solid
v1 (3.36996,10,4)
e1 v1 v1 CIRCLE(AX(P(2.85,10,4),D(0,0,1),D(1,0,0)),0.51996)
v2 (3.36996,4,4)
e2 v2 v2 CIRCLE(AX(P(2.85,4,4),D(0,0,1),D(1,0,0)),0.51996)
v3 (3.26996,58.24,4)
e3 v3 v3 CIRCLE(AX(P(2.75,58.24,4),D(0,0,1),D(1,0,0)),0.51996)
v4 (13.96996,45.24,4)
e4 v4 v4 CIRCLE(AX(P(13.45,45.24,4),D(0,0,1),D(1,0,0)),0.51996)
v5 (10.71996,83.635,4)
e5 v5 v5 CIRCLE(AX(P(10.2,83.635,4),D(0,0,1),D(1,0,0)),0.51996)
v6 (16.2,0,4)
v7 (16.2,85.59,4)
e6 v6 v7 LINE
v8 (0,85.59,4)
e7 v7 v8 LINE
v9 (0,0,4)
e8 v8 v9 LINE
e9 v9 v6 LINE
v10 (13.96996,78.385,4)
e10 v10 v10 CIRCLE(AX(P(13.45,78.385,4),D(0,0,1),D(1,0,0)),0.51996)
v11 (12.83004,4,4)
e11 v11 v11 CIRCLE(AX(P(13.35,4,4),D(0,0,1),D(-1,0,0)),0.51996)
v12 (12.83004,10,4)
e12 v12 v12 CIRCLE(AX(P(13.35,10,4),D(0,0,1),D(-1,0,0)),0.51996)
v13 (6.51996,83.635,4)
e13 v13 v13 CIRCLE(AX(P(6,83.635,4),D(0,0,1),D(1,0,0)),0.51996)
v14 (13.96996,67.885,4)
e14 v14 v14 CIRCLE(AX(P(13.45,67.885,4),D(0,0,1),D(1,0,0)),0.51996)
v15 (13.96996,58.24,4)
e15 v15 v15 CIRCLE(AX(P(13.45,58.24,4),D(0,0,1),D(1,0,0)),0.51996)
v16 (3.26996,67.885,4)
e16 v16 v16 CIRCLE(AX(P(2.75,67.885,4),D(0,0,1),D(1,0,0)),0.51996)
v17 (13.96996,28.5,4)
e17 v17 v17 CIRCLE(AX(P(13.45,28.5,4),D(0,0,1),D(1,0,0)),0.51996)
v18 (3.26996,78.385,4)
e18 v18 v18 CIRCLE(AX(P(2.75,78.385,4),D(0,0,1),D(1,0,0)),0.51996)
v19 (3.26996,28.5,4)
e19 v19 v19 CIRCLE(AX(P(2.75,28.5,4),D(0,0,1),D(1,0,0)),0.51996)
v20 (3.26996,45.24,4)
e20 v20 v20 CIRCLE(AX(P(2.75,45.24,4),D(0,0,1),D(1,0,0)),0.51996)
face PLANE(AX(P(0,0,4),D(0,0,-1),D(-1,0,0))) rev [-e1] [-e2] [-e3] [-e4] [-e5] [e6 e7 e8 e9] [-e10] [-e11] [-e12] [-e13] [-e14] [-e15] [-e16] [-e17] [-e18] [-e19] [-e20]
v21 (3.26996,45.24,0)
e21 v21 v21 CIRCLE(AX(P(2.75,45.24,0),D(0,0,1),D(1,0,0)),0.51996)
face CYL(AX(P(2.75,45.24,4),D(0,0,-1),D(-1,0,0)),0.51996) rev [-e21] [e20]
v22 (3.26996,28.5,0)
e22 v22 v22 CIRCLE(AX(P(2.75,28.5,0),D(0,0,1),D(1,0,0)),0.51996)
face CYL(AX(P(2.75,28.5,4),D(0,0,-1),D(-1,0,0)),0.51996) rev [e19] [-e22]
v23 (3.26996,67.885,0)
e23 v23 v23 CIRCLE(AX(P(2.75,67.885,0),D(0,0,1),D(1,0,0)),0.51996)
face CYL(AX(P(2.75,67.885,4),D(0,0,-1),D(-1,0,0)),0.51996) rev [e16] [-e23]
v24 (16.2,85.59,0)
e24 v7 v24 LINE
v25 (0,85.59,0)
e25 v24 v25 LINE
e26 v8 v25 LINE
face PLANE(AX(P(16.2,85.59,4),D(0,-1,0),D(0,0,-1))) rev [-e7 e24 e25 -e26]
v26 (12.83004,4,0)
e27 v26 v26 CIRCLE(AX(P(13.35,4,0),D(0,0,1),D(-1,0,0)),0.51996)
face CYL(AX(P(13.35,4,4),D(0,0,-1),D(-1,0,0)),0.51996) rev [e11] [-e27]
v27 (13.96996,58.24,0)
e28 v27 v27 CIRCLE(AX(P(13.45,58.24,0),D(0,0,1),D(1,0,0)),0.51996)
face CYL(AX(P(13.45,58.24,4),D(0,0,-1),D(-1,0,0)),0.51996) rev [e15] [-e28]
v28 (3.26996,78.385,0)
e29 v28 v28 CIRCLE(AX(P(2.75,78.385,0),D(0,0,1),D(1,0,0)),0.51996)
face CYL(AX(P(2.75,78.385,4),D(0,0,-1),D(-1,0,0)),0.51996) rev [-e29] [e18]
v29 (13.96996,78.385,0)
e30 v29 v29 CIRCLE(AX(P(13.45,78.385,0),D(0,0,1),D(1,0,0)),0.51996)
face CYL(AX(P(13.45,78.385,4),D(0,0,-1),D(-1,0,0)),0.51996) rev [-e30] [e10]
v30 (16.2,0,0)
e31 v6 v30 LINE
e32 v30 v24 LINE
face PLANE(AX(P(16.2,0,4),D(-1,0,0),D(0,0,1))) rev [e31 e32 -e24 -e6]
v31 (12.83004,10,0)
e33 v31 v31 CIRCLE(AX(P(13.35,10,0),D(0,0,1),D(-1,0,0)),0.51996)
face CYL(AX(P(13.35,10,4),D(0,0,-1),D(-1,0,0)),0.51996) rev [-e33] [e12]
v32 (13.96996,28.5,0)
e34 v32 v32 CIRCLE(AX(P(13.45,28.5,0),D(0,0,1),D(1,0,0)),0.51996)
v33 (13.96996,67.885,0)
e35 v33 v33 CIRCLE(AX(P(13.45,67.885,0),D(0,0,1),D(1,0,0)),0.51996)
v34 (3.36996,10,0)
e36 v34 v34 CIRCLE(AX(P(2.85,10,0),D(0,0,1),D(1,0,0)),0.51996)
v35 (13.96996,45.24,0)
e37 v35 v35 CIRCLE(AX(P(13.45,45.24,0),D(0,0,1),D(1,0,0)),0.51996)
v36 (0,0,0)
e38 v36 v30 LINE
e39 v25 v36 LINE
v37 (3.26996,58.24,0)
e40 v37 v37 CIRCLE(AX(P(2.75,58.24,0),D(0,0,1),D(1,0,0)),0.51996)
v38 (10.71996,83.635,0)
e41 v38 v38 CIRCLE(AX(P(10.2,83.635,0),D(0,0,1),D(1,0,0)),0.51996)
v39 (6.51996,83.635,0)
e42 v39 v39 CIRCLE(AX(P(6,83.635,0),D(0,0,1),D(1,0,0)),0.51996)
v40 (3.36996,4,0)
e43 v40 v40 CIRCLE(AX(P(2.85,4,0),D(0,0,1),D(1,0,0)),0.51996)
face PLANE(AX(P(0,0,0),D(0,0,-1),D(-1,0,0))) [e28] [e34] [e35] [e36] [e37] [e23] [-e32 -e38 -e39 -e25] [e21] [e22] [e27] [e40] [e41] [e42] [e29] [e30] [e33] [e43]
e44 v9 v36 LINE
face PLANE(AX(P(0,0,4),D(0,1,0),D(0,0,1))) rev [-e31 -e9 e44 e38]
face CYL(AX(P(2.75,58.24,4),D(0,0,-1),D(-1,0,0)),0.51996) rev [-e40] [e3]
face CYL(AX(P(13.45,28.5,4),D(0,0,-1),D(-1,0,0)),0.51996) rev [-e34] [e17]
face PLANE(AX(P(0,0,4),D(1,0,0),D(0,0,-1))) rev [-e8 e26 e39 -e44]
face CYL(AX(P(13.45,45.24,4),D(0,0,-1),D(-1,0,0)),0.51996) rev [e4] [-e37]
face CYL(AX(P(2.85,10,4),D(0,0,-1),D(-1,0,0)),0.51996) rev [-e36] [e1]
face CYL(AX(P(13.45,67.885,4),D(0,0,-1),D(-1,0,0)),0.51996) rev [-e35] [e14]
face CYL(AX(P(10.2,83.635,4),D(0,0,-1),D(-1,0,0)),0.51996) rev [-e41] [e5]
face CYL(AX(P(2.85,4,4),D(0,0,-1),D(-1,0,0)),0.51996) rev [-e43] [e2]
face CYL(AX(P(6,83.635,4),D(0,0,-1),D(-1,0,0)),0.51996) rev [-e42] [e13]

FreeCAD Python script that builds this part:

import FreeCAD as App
import Part
import Sketcher
from FreeCAD import Vector
Q = App.Units.Quantity

doc = App.newDocument("Part")
params = doc.addObject("Spreadsheet::Sheet", "Params")
for row, (alias, value) in enumerate([
    ("sketch1_width", "16.2 mm"),
    ("sketch1_height", "85.59 mm"),
    ("pad1_length", "4 mm"),
], start=1):
    params.set(f"A{row}", alias)
    params.set(f"B{row}", "=" + value)
    params.setAlias(f"B{row}", alias)

body = doc.addObject("PartDesign::Body", "Body")

sketch1 = body.newObject("Sketcher::SketchObject", "Sketch")
sketch1.AttachmentSupport = (doc.getObject("XY_Plane"), [""])
sketch1.MapMode = "FlatFace"
sketch1.addGeometry(Part.LineSegment(Vector(0, 85.6, 0), Vector(0, 0, 0)), False)
sketch1.addGeometry(Part.LineSegment(Vector(0, 0, 0), Vector(16.2, 0, 0)), False)
sketch1.addGeometry(Part.LineSegment(Vector(16.2, 0, 0), Vector(16.2, 85.6, 0)), False)
sketch1.addGeometry(Part.LineSegment(Vector(16.2, 85.6, 0), Vector(0, 85.6, 0)), False)
sketch1.addGeometry(Part.Circle(Vector(2.9, 4, 0), Vector(0, 0, 1), 0.5), False)
sketch1.addGeometry(Part.Circle(Vector(2.9, 10, 0), Vector(0, 0, 1), 0.5), False)
sketch1.addGeometry(Part.Circle(Vector(2.8, 28.5, 0), Vector(0, 0, 1), 0.5), False)
sketch1.addGeometry(Part.Circle(Vector(13.3, 4, 0), Vector(0, 0, 1), 0.5), False)
sketch1.addGeometry(Part.Circle(Vector(13.3, 10, 0), Vector(0, 0, 1), 0.5), False)
sketch1.addGeometry(Part.Circle(Vector(13.4, 28.5, 0), Vector(0, 0, 1), 0.5), False)
sketch1.addGeometry(Part.Circle(Vector(2.8, 45.2, 0), Vector(0, 0, 1), 0.5), False)
sketch1.addGeometry(Part.Circle(Vector(2.8, 58.2, 0), Vector(0, 0, 1), 0.5), False)
sketch1.addGeometry(Part.Circle(Vector(2.8, 67.9, 0), Vector(0, 0, 1), 0.5), False)
sketch1.addGeometry(Part.Circle(Vector(2.8, 78.4, 0), Vector(0, 0, 1), 0.5), False)
sketch1.addGeometry(Part.Circle(Vector(6, 83.6, 0), Vector(0, 0, 1), 0.5), False)
sketch1.addGeometry(Part.Circle(Vector(13.4, 45.2, 0), Vector(0, 0, 1), 0.5), False)
sketch1.addGeometry(Part.Circle(Vector(13.4, 58.2, 0), Vector(0, 0, 1), 0.5), False)
sketch1.addGeometry(Part.Circle(Vector(10.2, 83.6, 0), Vector(0, 0, 1), 0.5), False)
sketch1.addGeometry(Part.Circle(Vector(13.4, 67.9, 0), Vector(0, 0, 1), 0.5), False)
sketch1.addGeometry(Part.Circle(Vector(13.4, 78.4, 0), Vector(0, 0, 1), 0.5), False)
sketch1.addConstraint(Sketcher.Constraint("Coincident", 0, 2, 1, 1))
sketch1.addConstraint(Sketcher.Constraint("Coincident", 1, 2, 2, 1))
sketch1.addConstraint(Sketcher.Constraint("Coincident", 2, 2, 3, 1))
sketch1.addConstraint(Sketcher.Constraint("Coincident", 3, 2, 0, 1))
sketch1.addConstraint(Sketcher.Constraint("Vertical", 0))
sketch1.addConstraint(Sketcher.Constraint("Horizontal", 1))
sketch1.addConstraint(Sketcher.Constraint("Vertical", 2))
sketch1.addConstraint(Sketcher.Constraint("Horizontal", 3))
sketch1.addConstraint(Sketcher.Constraint("Coincident", 0, 2, -1, 1))
sketch1.addConstraint(Sketcher.Constraint("Equal", 4, 5))
sketch1.addConstraint(Sketcher.Constraint("Equal", 5, 6))
sketch1.addConstraint(Sketcher.Constraint("Equal", 6, 7))
sketch1.addConstraint(Sketcher.Constraint("Equal", 7, 8))
sketch1.addConstraint(Sketcher.Constraint("Equal", 8, 9))
sketch1.addConstraint(Sketcher.Constraint("Equal", 9, 10))
sketch1.addConstraint(Sketcher.Constraint("Equal", 10, 11))
sketch1.addConstraint(Sketcher.Constraint("Equal", 11, 12))
sketch1.addConstraint(Sketcher.Constraint("Equal", 12, 13))
sketch1.addConstraint(Sketcher.Constraint("Equal", 13, 14))
sketch1.addConstraint(Sketcher.Constraint("Equal", 14, 15))
sketch1.addConstraint(Sketcher.Constraint("Equal", 15, 16))
sketch1.addConstraint(Sketcher.Constraint("Equal", 16, 17))
sketch1.addConstraint(Sketcher.Constraint("Equal", 17, 18))
sketch1.addConstraint(Sketcher.Constraint("Equal", 18, 19))
sketch1.addConstraint(Sketcher.Constraint("Horizontal", 4, 3, 7, 3))
sketch1.addConstraint(Sketcher.Constraint("Horizontal", 5, 3, 8, 3))
sketch1.addConstraint(Sketcher.Constraint("Horizontal", 6, 3, 9, 3))
sketch1.addConstraint(Sketcher.Constraint("Horizontal", 10, 3, 15, 3))
sketch1.addConstraint(Sketcher.Constraint("Horizontal", 11, 3, 16, 3))
sketch1.addConstraint(Sketcher.Constraint("Horizontal", 14, 3, 17, 3))
sketch1.addConstraint(Sketcher.Constraint("Horizontal", 12, 3, 18, 3))
sketch1.addConstraint(Sketcher.Constraint("Horizontal", 13, 3, 19, 3))
sketch1.addConstraint(Sketcher.Constraint("Vertical", 4, 3, 5, 3))
sketch1.addConstraint(Sketcher.Constraint("Vertical", 7, 3, 8, 3))
sketch1.addConstraint(Sketcher.Constraint("Vertical", 6, 3, 10, 3))
sketch1.addConstraint(Sketcher.Constraint("Vertical", 10, 3, 11, 3))
sketch1.addConstraint(Sketcher.Constraint("Vertical", 11, 3, 12, 3))
sketch1.addConstraint(Sketcher.Constraint("Vertical", 12, 3, 13, 3))
sketch1.addConstraint(Sketcher.Constraint("Vertical", 9, 3, 15, 3))
sketch1.addConstraint(Sketcher.Constraint("Vertical", 15, 3, 16, 3))
sketch1.addConstraint(Sketcher.Constraint("Vertical", 16, 3, 18, 3))
sketch1.addConstraint(Sketcher.Constraint("Vertical", 18, 3, 19, 3))
sketch1.addConstraint(Sketcher.Constraint("DistanceX", 1, 1, 1, 2, Q("16.2 mm")))
sketch1.addConstraint(Sketcher.Constraint("DistanceY", -1, 1, 4, 3, Q("4 mm")))
sketch1.addConstraint(Sketcher.Constraint("DistanceY", -1, 1, 5, 3, Q("10 mm")))
sketch1.addConstraint(Sketcher.Constraint("DistanceX", -1, 1, 14, 3, Q("6 mm")))
sketch1.addConstraint(Sketcher.Constraint("DistanceY", 10, 3, 11, 3, Q("13 mm")))
sketch1.addConstraint(Sketcher.Constraint("DistanceX", 17, 3, 2, 2, Q("6 mm")))
sketch1.addConstraint(Sketcher.Constraint("DistanceY", 0, 2, 0, 1, Q("85.59 mm")))
sketch1.addConstraint(Sketcher.Constraint("DistanceY", -1, 1, 6, 3, Q("28.5 mm")))
sketch1.addConstraint(Sketcher.Constraint("DistanceX", 6, 3, 5, 3, Q("0.1 mm")))
sketch1.addConstraint(Sketcher.Constraint("DistanceX", 4, 3, 7, 3, Q("10.5 mm")))
sketch1.addConstraint(Sketcher.Constraint("DistanceX", 6, 3, 9, 3, Q("10.7 mm")))
sketch1.addConstraint(Sketcher.Constraint("DistanceY", 12, 3, 13, 3, Q("10.5 mm")))
sketch1.addConstraint(Sketcher.Constraint("Diameter", 4, Q("1.03992 mm")))
sketch1.addConstraint(Sketcher.Constraint("DistanceX", -1, 1, 4, 3, Q("2.85 mm")))
sketch1.addConstraint(Sketcher.Constraint("DistanceY", -1, 1, 10, 3, Q("45.24 mm")))
sketch1.addConstraint(Sketcher.Constraint("DistanceY", 13, 3, 14, 3, Q("5.25 mm")))
sketch1.addConstraint(Sketcher.Constraint("DistanceY", -1, 1, 12, 3, Q("67.885 mm")))
sketch1.setExpression("Constraints[42]", "Params.sketch1_width")
sketch1.setExpression("Constraints[48]", "Params.sketch1_height")
pad1 = body.newObject("PartDesign::Pad", "Pad")
pad1.Profile = sketch1
pad1.setExpression("Length", "Params.pad1_length")

doc.recompute()
